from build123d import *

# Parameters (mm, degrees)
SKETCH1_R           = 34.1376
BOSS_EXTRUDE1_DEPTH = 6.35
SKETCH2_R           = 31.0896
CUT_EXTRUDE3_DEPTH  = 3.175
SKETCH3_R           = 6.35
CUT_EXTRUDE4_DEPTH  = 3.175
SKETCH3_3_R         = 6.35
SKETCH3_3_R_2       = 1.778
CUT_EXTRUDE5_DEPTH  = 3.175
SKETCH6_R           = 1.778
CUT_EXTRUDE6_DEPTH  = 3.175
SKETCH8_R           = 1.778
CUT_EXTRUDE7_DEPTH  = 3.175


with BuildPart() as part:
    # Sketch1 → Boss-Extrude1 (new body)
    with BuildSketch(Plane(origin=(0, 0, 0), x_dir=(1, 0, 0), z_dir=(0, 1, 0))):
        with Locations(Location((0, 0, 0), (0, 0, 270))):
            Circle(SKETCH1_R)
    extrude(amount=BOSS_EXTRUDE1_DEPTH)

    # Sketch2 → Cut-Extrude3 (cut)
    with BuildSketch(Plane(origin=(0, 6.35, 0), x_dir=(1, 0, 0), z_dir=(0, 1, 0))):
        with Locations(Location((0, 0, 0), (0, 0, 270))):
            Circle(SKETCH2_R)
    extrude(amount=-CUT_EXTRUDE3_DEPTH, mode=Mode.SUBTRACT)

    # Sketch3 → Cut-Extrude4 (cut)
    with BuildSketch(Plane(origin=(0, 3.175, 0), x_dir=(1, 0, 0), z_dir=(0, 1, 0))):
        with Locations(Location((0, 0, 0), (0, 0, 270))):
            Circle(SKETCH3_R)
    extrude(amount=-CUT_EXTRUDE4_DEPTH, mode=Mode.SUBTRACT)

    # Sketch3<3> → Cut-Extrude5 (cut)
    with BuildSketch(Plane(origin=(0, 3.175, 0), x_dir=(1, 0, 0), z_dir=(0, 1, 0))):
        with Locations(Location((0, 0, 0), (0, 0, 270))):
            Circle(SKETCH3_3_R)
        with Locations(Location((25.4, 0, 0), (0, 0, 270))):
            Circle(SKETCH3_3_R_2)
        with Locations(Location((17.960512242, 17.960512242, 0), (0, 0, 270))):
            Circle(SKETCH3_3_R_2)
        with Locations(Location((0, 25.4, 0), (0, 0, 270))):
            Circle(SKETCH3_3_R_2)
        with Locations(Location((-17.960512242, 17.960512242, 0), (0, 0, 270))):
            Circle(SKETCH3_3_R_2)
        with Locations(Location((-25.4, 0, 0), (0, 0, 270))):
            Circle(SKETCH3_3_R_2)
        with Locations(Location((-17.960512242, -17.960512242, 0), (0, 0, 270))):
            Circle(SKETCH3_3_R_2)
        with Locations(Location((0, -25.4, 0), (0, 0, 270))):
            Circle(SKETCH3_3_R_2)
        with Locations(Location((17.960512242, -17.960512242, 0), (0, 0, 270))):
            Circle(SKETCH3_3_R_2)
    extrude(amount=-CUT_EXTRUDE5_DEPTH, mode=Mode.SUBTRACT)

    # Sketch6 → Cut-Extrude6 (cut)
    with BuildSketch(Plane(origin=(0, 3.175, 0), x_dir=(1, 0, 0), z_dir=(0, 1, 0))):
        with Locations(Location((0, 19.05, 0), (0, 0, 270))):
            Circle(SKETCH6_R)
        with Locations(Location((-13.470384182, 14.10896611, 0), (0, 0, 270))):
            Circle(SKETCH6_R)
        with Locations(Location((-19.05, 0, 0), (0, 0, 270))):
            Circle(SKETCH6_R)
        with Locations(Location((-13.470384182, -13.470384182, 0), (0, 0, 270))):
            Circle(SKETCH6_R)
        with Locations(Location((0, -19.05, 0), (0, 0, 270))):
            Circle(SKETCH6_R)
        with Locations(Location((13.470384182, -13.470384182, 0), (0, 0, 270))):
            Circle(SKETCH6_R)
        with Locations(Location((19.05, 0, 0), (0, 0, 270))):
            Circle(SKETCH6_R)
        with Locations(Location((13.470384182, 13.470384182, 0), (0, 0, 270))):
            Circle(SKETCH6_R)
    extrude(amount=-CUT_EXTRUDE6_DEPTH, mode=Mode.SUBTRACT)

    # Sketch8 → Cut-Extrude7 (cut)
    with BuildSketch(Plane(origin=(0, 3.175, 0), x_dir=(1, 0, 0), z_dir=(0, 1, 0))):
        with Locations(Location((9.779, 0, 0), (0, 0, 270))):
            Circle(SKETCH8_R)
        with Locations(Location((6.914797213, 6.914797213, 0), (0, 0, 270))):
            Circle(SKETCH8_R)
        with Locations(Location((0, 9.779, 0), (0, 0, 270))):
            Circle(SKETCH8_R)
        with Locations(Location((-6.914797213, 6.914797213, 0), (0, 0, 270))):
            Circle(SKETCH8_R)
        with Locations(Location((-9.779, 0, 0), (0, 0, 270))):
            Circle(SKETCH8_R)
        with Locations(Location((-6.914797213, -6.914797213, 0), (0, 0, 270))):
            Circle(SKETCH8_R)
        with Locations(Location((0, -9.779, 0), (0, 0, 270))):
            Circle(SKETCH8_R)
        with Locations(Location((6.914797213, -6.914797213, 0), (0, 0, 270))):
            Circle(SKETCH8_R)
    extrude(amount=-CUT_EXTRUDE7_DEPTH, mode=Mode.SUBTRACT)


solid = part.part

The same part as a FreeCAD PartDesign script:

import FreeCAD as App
import Part
import Sketcher
Q = App.Units.Quantity

doc = App.newDocument("Part")
body = doc.addObject("PartDesign::Body", "Body")

sketch1 = body.newObject("Sketcher::SketchObject", "Sketch")
sketch1.AttachmentSupport = (doc.getObject("XZ_Plane"), [""])
sketch1.MapMode = "FlatFace"
sketch1.addGeometry(Part.Circle(App.Vector(0, 0, 0), App.Vector(0, 0, 1), 34.1376), False)
sketch1.addConstraint([
    Sketcher.Constraint("Coincident", 0, 3, -1, 1),
    Sketcher.Constraint("Diameter", 0, Q("2.688 in")),
])
pad1 = body.newObject("PartDesign::Pad", "Pad")
pad1.Profile = sketch1
pad1.Length = Q("0.25 in")
pad1.Reversed = True

sketch2 = body.newObject("Sketcher::SketchObject", "Sketch001")
sketch2.AttachmentSupport = (doc.getObject("XZ_Plane"), [""])
sketch2.MapMode = "FlatFace"
sketch2.AttachmentOffset = App.Placement(App.Vector(0, 0, -0.25 * 25.4), App.Rotation())
sketch2.addGeometry(Part.Circle(App.Vector(0, 0, 0), App.Vector(0, 0, 1), 31.0896), False)
sketch2.addConstraint([
    Sketcher.Constraint("Coincident", 0, 3, -1, 1),
    Sketcher.Constraint("Diameter", 0, Q("2.448 in")),
])
pocket1 = body.newObject("PartDesign::Pocket", "Pocket")
pocket1.Profile = sketch2
pocket1.Length = Q("0.125 in")
pocket1.Reversed = True

sketch3 = body.newObject("Sketcher::SketchObject", "Sketch002")
sketch3.AttachmentSupport = (doc.getObject("XZ_Plane"), [""])
sketch3.MapMode = "FlatFace"
sketch3.AttachmentOffset = App.Placement(App.Vector(0, 0, -0.125 * 25.4), App.Rotation())
sketch3.addGeometry(Part.Circle(App.Vector(0, 0, 0), App.Vector(0, 0, 1), 6.35), False)
sketch3.addConstraint([
    Sketcher.Constraint("Coincident", 0, 3, -1, 1),
    Sketcher.Constraint("Diameter", 0, Q("0.5 in")),
])
pocket2 = body.newObject("PartDesign::Pocket", "Pocket001")
pocket2.Profile = sketch3
pocket2.Length = Q("0.125 in")
pocket2.Reversed = True

sketch4 = body.newObject("Sketcher::SketchObject", "Sketch003")
sketch4.AttachmentSupport = (doc.getObject("XZ_Plane"), [""])
sketch4.MapMode = "FlatFace"
sketch4.AttachmentOffset = App.Placement(App.Vector(0, 0, -0.125 * 25.4), App.Rotation())
sketch4.addGeometry([
    Part.Circle(App.Vector(0, 0, 0), App.Vector(0, 0, 1), 6.35),
    Part.Circle(App.Vector(25.4, 0, 0), App.Vector(0, 0, 1), 1.778),
    Part.Circle(App.Vector(17.960512, -17.960512, 0), App.Vector(0, 0, 1), 1.778),
    Part.Circle(App.Vector(0, -25.4, 0), App.Vector(0, 0, 1), 1.778),
    Part.Circle(App.Vector(-17.960512, -17.960512, 0), App.Vector(0, 0, 1), 1.778),
    Part.Circle(App.Vector(-25.4, 0, 0), App.Vector(0, 0, 1), 1.778),
    Part.Circle(App.Vector(-17.960512, 17.960512, 0), App.Vector(0, 0, 1), 1.778),
    Part.Circle(App.Vector(0, 25.4, 0), App.Vector(0, 0, 1), 1.778),
    Part.Circle(App.Vector(17.960512, 17.960512, 0), App.Vector(0, 0, 1), 1.778),
], False)
sketch4.addConstraint([
    Sketcher.Constraint("Coincident", 0, 3, -1, 1),
    Sketcher.Constraint("Equal", 1, 2),
    Sketcher.Constraint("Equal", 2, 3),
    Sketcher.Constraint("Equal", 3, 4),
    Sketcher.Constraint("Equal", 4, 5),
    Sketcher.Constraint("Equal", 5, 6),
    Sketcher.Constraint("Equal", 6, 7),
    Sketcher.Constraint("Equal", 7, 8),
    Sketcher.Constraint("Symmetric", 1, 3, 5, 3, -1, 1),
    Sketcher.Constraint("Symmetric", 2, 3, 6, 3, -1, 1),
    Sketcher.Constraint("Symmetric", 3, 3, 7, 3, -1, 1),
    Sketcher.Constraint("Symmetric", 4, 3, 8, 3, -1, 1),
    Sketcher.Constraint("Symmetric", 2, 3, 4, 3, -2),
    Sketcher.Constraint("PointOnObject", 1, 3, -1),
    Sketcher.Constraint("PointOnObject", 3, 3, -2),
    Sketcher.Constraint("Diameter", 0, Q("0.5 in")),
    Sketcher.Constraint("Diameter", 1, Q("0.14 in")),
    Sketcher.Constraint("DistanceX", -1, 1, 1, 3, Q("1 in")),
    Sketcher.Constraint("DistanceY", 3, 3, -1, 1, Q("1 in")),
    Sketcher.Constraint("DistanceX", -1, 1, 2, 3, Q("17.960512 mm")),
    Sketcher.Constraint("DistanceY", 2, 3, -1, 1, Q("17.960512 mm")),
])
pocket3 = body.newObject("PartDesign::Pocket", "Pocket002")
pocket3.Profile = sketch4
pocket3.Length = Q("0.125 in")
pocket3.Reversed = True

sketch5 = body.newObject("Sketcher::SketchObject", "Sketch004")
sketch5.AttachmentSupport = (doc.getObject("XZ_Plane"), [""])
sketch5.MapMode = "FlatFace"
sketch5.AttachmentOffset = App.Placement(App.Vector(0, 0, -0.125 * 25.4), App.Rotation())
sketch5.addGeometry([
    Part.Circle(App.Vector(0, -19.05, 0), App.Vector(0, 0, 1), 1.778),
    Part.Circle(App.Vector(-13.470384, -14.108966, 0), App.Vector(0, 0, 1), 1.778),
    Part.Circle(App.Vector(-19.05, 0, 0), App.Vector(0, 0, 1), 1.778),
    Part.Circle(App.Vector(-13.470384, 13.470384, 0), App.Vector(0, 0, 1), 1.778),
    Part.Circle(App.Vector(0, 19.05, 0), App.Vector(0, 0, 1), 1.778),
    Part.Circle(App.Vector(13.470384, 13.470384, 0), App.Vector(0, 0, 1), 1.778),
    Part.Circle(App.Vector(19.05, 0, 0), App.Vector(0, 0, 1), 1.778),
    Part.Circle(App.Vector(13.470384, -13.470384, 0), App.Vector(0, 0, 1), 1.778),
], False)
sketch5.addConstraint([
    Sketcher.Constraint("Equal", 0, 1),
    Sketcher.Constraint("Equal", 1, 2),
    Sketcher.Constraint("Equal", 2, 3),
    Sketcher.Constraint("Equal", 3, 4),
    Sketcher.Constraint("Equal", 4, 5),
    Sketcher.Constraint("Equal", 5, 6),
    Sketcher.Constraint("Equal", 6, 7),
    Sketcher.Constraint("Symmetric", 0, 3, 4, 3, -1, 1),
    Sketcher.Constraint("Symmetric", 2, 3, 6, 3, -1, 1),
    Sketcher.Constraint("Symmetric", 3, 3, 7, 3, -1, 1),
    Sketcher.Constraint("Symmetric", 3, 3, 5, 3, -2),
    Sketcher.Constraint("PointOnObject", 0, 3, -2),
    Sketcher.Constraint("PointOnObject", 2, 3, -1),
    Sketcher.Constraint("Vertical", 1, 3, 3, 3),
    Sketcher.Constraint("Diameter", 0, Q("0.14 in")),
    Sketcher.Constraint("DistanceY", 0, 3, 4, 3, Q("1.5 in")),
    Sketcher.Constraint("DistanceX", 2, 3, -1, 1, Q("0.75 in")),
    Sketcher.Constraint("DistanceY", 1, 3, 3, 3, Q("27.57935 mm")),
    Sketcher.Constraint("DistanceX", 3, 3, 5, 3, Q("26.940768 mm")),
    Sketcher.Constraint("DistanceY", 7, 3, 5, 3, Q("26.940768 mm")),
])
pocket4 = body.newObject("PartDesign::Pocket", "Pocket003")
pocket4.Profile = sketch5
pocket4.Length = Q("0.125 in")
pocket4.Reversed = True

sketch6 = body.newObject("Sketcher::SketchObject", "Sketch005")
sketch6.AttachmentSupport = (doc.getObject("XZ_Plane"), [""])
sketch6.MapMode = "FlatFace"
sketch6.AttachmentOffset = App.Placement(App.Vector(0, 0, -0.125 * 25.4), App.Rotation())
sketch6.addGeometry([
    Part.Circle(App.Vector(9.779, 0, 0), App.Vector(0, 0, 1), 1.778),
    Part.Circle(App.Vector(6.914797, -6.914797, 0), App.Vector(0, 0, 1), 1.778),
    Part.Circle(App.Vector(0, -9.779, 0), App.Vector(0, 0, 1), 1.778),
    Part.Circle(App.Vector(-6.914797, -6.914797, 0), App.Vector(0, 0, 1), 1.778),
    Part.Circle(App.Vector(-9.779, 0, 0), App.Vector(0, 0, 1), 1.778),
    Part.Circle(App.Vector(-6.914797, 6.914797, 0), App.Vector(0, 0, 1), 1.778),
    Part.Circle(App.Vector(0, 9.779, 0), App.Vector(0, 0, 1), 1.778),
    Part.Circle(App.Vector(6.914797, 6.914797, 0), App.Vector(0, 0, 1), 1.778),
], False)
sketch6.addConstraint([
    Sketcher.Constraint("Equal", 0, 1),
    Sketcher.Constraint("Equal", 1, 2),
    Sketcher.Constraint("Equal", 2, 3),
    Sketcher.Constraint("Equal", 3, 4),
    Sketcher.Constraint("Equal", 4, 5),
    Sketcher.Constraint("Equal", 5, 6),
    Sketcher.Constraint("Equal", 6, 7),
    Sketcher.Constraint("Symmetric", 0, 3, 4, 3, -1, 1),
    Sketcher.Constraint("Symmetric", 1, 3, 5, 3, -1, 1),
    Sketcher.Constraint("Symmetric", 2, 3, 6, 3, -1, 1),
    Sketcher.Constraint("Symmetric", 3, 3, 7, 3, -1, 1),
    Sketcher.Constraint("Symmetric", 1, 3, 3, 3, -2),
    Sketcher.Constraint("PointOnObject", 0, 3, -1),
    Sketcher.Constraint("PointOnObject", 2, 3, -2),
    Sketcher.Constraint("Diameter", 0, Q("0.14 in")),
    Sketcher.Constraint("DistanceX", 4, 3, 0, 3, Q("0.77 in")),
    Sketcher.Constraint("DistanceY", 2, 3, -1, 1, Q("0.385 in")),
    Sketcher.Constraint("DistanceX", -1, 1, 1, 3, Q("6.914797 mm")),
    Sketcher.Constraint("DistanceY", 1, 3, -1, 1, Q("6.914797 mm")),
])
pocket5 = body.newObject("PartDesign::Pocket", "Pocket004")
pocket5.Profile = sketch6
pocket5.Length = Q("0.125 in")
pocket5.Reversed = True

doc.recompute()
